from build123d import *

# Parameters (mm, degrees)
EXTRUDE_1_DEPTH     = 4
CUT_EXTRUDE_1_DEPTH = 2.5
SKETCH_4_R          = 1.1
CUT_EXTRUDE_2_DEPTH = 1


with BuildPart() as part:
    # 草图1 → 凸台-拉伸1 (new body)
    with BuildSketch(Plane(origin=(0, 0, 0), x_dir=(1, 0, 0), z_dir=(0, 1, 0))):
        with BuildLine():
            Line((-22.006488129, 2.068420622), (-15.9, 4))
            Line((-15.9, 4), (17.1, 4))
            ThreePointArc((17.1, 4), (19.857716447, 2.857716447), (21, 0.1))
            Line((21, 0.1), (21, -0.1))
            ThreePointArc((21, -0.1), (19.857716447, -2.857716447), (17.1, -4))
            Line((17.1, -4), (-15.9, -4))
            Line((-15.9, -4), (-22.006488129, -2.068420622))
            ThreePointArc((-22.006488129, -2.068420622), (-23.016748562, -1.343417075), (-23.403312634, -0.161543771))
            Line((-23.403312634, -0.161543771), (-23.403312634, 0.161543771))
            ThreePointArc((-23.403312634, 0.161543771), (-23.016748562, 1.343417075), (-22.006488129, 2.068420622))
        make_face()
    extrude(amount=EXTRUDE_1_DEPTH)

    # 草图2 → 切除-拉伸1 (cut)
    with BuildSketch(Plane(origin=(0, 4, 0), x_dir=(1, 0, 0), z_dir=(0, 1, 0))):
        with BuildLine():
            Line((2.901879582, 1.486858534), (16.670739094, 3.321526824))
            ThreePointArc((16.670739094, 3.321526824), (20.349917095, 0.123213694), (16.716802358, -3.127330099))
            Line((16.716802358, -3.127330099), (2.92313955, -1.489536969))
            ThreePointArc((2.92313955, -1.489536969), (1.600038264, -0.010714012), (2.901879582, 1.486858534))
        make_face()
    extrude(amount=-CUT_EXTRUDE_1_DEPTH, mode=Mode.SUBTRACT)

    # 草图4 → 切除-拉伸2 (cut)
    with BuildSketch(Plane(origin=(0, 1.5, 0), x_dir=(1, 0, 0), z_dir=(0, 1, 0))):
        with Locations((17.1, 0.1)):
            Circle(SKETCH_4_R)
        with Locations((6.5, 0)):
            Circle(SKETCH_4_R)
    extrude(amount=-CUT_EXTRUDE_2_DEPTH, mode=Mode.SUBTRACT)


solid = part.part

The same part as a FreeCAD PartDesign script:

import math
import FreeCAD as App
import Part
import Sketcher
from FreeCAD import Vector
Q = App.Units.Quantity

doc = App.newDocument("Part")
body = doc.addObject("PartDesign::Body", "Body")

# Sketch on XZ plane
sketch1 = body.newObject("Sketcher::SketchObject", "Sketch")
sketch1.AttachmentSupport = (doc.getObject("XZ_Plane"), [""])
sketch1.MapMode = "FlatFace"
sketch1.addGeometry([
    Part.LineSegment(Vector(-15.9, -4, 0), Vector(-22.006488, -2.068421, 0)),  # 0
    Part.ArcOfCircle(Part.Circle(Vector(-21.403313, -0.161544, 0), Vector(0, 0, 1), 2), math.radians(180), math.radians(252.447008)),  # 1
    Part.LineSegment(Vector(-23.403313, -0.161544, 0), Vector(-23.403313, 0.161544, 0)),  # 2
    Part.ArcOfCircle(Part.Circle(Vector(-21.403313, 0.161544, 0), Vector(0, 0, 1), 2), math.radians(107.552992), math.radians(180)),  # 3
    Part.LineSegment(Vector(-22.006488, 2.068421, 0), Vector(-15.9, 4, 0)),  # 4
    Part.LineSegment(Vector(-15.9, 4, 0), Vector(17.1, 4, 0)),  # 5
    Part.ArcOfCircle(Part.Circle(Vector(17.1, 0.1, 0), Vector(0, 0, 1), 3.9), math.radians(0), math.radians(90)),  # 6
    Part.LineSegment(Vector(21, 0.1, 0), Vector(21, -0.1, 0)),  # 7
    Part.ArcOfCircle(Part.Circle(Vector(17.1, -0.1, 0), Vector(0, 0, 1), 3.9), math.radians(-90), math.radians(0)),  # 8
    Part.LineSegment(Vector(17.1, -4, 0), Vector(-15.9, -4, 0)),  # 9
], False)
sketch1.addConstraint([
    Sketcher.Constraint("Tangent", 0, 2, 1, 2),
    Sketcher.Constraint("Tangent", 1, 1, 2, 1),
    Sketcher.Constraint("Tangent", 2, 2, 3, 2),
    Sketcher.Constraint("Tangent", 3, 1, 4, 1),
    Sketcher.Constraint("Coincident", 4, 2, 5, 1),
    Sketcher.Constraint("Tangent", 5, 2, 6, 2),
    Sketcher.Constraint("Tangent", 6, 1, 7, 1),
    Sketcher.Constraint("Tangent", 7, 2, 8, 2),
    Sketcher.Constraint("Tangent", 8, 1, 9, 1),
    Sketcher.Constraint("Coincident", 9, 2, 0, 1),
    Sketcher.Constraint("Vertical", 2),
    Sketcher.Constraint("Horizontal", 5),
    Sketcher.Constraint("Vertical", 7),
    Sketcher.Constraint("Horizontal", 9),
    Sketcher.Constraint("Equal", 1, 3),
    Sketcher.Constraint("Equal", 6, 8),
    Sketcher.Constraint("Symmetric", 0, 2, 3, 1, -1),
    Sketcher.Constraint("Vertical", 4, 2, 9, 2),
    Sketcher.Constraint("Radius", 1, Q("2 mm")),
    Sketcher.Constraint("Radius", 6, Q("3.9 mm")),
    Sketcher.Constraint("DistanceX", 5, 1, 5, 2, Q("33 mm")),
    Sketcher.Constraint("DistanceY", 7, 2, 7, 1, Q("0.2 mm")),
    Sketcher.Constraint("DistanceX", -1, 1, 6, 1, Q("21 mm")),
    Sketcher.Constraint("Distance", 0, Q("6.404701 mm")),
    Sketcher.Constraint("DistanceY", 2, 1, 2, 2, Q("0.323088 mm")),
])
pad1 = body.newObject("PartDesign::Pad", "Pad")
pad1.Profile = sketch1
pad1.Length = 4
pad1.Reversed = True

# Sketch on XZ plane
sketch2 = body.newObject("Sketcher::SketchObject", "Sketch001")
sketch2.AttachmentSupport = (doc.getObject("XZ_Plane"), [""])
sketch2.MapMode = "FlatFace"
sketch2.AttachmentOffset = App.Placement(Vector(0, 0, -4), App.Rotation())
sketch2.addGeometry([
    Part.LineSegment(Vector(16.670739, -3.321527, 0), Vector(2.90188, -1.486859, 0)),
    Part.ArcOfCircle(Part.Circle(Vector(3.1, 0, 0), Vector(0, 0, 1), 1.5), math.radians(96.771323), math.radians(262.41018)),
    Part.LineSegment(Vector(2.92314, 1.489537, 0), Vector(16.716802, 3.12733, 0)),
    Part.ArcOfCircle(Part.Circle(Vector(17.1, -0.1, 0), Vector(0, 0, 1), 3.25), math.radians(-97.58982), math.radians(96.771323)),
], False)
sketch2.addConstraint([
    Sketcher.Constraint("Tangent", 0, 2, 1, 2),
    Sketcher.Constraint("Tangent", 1, 1, 2, 1),
    Sketcher.Constraint("Tangent", 2, 2, 3, 2),
    Sketcher.Constraint("Tangent", 3, 1, 0, 1),
    Sketcher.Constraint("PointOnObject", 1, 3, -1),
    Sketcher.Constraint("Radius", 1, Q("1.5 mm")),
    Sketcher.Constraint("Radius", 3, Q("3.25 mm")),
    Sketcher.Constraint("DistanceX", 1, 3, 3, 3, Q("14 mm")),
    Sketcher.Constraint("DistanceX", -1, 1, 1, 3, Q("3.1 mm")),
    Sketcher.Constraint("DistanceY", 3, 3, -1, 1, Q("0.1 mm")),
])
pocket1 = body.newObject("PartDesign::Pocket", "Pocket")
pocket1.Profile = sketch2
pocket1.Length = 2.5
pocket1.Reversed = True

# Sketch on XZ plane
sketch3 = body.newObject("Sketcher::SketchObject", "Sketch002")
sketch3.AttachmentSupport = (doc.getObject("XZ_Plane"), [""])
sketch3.MapMode = "FlatFace"
sketch3.AttachmentOffset = App.Placement(Vector(0, 0, -1.5), App.Rotation())
sketch3.addGeometry([
    Part.Circle(Vector(17.1, -0.1, 0), Vector(0, 0, 1), 1.1),
    Part.Circle(Vector(6.5, 0, 0), Vector(0, 0, 1), 1.1),
], False)
sketch3.addConstraint([
    Sketcher.Constraint("Equal", 0, 1),
    Sketcher.Constraint("PointOnObject", 1, 3, -1),
    Sketcher.Constraint("Diameter", 0, Q("2.2 mm")),
    Sketcher.Constraint("DistanceX", -1, 1, 0, 3, Q("17.1 mm")),
    Sketcher.Constraint("DistanceY", 0, 3, -1, 1, Q("0.1 mm")),
    Sketcher.Constraint("DistanceX", -1, 1, 1, 3, Q("6.5 mm")),
])
pocket2 = body.newObject("PartDesign::Pocket", "Pocket001")
pocket2.Profile = sketch3
pocket2.Length = 1
pocket2.Reversed = True

doc.recompute()
